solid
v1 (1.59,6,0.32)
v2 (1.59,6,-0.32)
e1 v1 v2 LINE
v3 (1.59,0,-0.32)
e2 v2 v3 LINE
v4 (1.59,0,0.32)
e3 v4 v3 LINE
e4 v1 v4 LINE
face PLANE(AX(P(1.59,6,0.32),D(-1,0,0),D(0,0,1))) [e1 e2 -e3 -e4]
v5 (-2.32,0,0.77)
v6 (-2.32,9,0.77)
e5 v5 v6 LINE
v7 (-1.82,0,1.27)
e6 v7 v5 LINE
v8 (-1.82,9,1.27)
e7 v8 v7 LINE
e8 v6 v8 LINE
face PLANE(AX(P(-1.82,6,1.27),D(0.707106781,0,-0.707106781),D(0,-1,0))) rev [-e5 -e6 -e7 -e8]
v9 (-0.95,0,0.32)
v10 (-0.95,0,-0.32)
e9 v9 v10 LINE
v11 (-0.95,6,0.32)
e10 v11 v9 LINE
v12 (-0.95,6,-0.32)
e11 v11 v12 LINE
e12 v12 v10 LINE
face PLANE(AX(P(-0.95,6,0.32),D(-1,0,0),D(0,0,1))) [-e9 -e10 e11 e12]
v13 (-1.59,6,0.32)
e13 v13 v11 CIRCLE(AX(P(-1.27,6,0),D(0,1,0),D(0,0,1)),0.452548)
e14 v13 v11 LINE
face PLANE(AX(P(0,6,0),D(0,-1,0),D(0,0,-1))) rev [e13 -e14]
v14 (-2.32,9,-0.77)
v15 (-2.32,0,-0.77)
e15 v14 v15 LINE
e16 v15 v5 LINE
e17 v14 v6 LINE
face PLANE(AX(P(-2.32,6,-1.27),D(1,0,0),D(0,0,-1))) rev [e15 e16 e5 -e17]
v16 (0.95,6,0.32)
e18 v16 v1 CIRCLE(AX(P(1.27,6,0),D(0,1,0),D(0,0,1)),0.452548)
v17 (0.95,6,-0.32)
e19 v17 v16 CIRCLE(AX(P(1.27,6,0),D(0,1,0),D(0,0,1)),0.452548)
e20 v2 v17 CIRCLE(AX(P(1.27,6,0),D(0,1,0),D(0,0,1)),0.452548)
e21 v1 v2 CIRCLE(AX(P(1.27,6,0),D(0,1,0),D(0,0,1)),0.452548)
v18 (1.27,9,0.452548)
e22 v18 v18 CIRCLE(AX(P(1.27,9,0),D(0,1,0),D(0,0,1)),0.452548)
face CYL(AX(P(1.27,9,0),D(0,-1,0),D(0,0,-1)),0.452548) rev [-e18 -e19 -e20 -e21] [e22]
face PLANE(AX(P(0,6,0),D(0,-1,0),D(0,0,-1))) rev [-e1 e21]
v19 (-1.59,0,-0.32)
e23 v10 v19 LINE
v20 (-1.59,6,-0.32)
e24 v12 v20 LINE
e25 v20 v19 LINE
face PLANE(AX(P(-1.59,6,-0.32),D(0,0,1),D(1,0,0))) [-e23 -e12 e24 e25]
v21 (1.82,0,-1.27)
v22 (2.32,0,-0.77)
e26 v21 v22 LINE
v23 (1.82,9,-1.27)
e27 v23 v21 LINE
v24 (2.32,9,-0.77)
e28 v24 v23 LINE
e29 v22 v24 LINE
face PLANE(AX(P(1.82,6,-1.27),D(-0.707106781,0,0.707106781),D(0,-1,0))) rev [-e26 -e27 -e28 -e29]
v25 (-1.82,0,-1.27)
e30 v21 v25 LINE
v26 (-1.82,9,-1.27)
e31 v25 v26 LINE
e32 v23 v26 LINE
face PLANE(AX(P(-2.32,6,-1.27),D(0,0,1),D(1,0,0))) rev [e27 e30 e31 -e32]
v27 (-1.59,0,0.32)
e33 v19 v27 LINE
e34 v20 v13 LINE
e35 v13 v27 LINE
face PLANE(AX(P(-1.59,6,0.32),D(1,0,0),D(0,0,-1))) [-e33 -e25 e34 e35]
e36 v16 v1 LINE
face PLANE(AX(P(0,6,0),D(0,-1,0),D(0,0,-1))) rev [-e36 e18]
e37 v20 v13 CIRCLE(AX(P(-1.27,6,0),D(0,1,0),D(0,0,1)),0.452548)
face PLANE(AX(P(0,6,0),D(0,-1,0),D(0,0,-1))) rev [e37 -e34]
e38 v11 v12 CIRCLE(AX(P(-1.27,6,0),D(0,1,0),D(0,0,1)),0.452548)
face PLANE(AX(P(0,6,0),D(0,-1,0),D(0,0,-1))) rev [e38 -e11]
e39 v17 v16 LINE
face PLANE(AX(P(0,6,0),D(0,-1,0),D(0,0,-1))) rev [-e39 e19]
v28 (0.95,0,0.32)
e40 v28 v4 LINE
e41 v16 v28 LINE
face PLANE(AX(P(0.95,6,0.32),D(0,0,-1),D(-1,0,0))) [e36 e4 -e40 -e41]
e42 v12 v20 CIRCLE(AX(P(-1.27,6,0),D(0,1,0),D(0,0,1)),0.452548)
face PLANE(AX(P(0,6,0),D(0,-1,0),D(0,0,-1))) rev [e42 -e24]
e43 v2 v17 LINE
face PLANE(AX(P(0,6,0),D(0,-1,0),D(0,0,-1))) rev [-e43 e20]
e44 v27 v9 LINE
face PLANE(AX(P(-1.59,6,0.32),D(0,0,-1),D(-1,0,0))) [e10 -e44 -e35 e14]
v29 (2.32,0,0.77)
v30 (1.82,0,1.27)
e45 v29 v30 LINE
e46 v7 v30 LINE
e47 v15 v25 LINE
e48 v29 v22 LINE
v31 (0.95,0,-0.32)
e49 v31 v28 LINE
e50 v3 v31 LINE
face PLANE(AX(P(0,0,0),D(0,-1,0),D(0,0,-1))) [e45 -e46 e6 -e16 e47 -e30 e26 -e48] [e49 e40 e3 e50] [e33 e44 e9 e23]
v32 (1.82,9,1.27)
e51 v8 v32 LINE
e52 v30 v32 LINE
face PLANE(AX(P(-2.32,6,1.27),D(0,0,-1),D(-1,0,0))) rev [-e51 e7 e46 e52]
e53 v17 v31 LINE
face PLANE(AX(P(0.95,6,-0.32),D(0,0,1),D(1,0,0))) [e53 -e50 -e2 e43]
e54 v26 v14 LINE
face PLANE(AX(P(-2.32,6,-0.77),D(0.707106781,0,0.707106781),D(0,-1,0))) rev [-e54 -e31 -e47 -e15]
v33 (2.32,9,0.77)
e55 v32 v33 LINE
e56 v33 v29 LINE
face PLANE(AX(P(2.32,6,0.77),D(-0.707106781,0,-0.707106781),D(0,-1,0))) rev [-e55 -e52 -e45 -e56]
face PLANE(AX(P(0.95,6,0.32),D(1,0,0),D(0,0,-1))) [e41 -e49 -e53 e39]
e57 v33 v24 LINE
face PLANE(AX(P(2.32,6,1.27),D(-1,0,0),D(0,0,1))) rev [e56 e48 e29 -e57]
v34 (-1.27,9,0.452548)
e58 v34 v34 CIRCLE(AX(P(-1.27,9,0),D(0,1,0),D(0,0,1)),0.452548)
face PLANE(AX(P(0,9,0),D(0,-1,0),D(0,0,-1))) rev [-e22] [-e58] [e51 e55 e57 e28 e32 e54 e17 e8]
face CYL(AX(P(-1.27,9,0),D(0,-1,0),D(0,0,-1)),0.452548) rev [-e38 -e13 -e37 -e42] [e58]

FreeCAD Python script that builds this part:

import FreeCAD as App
import Part
import Sketcher

V = App.Vector
Q = App.Units.Quantity


def edges_at(feature, points):
    """Names of the edges that pass closest to the given points."""
    edges = feature.Shape.Edges
    near = lambda p: min(range(len(edges)), key=lambda i: edges[i].distToShape(Part.Vertex(*p))[0])
    return sorted({f"Edge{near(p) + 1}" for p in points})


def add_polygon(sketch, points):
    """Adds a closed chain of lines whose ends are joined by coincident constraints."""
    first, n = sketch.GeometryCount, len(points)
    for a, b in zip(points, points[1:] + points[:1]):
        sketch.addGeometry(Part.LineSegment(App.Vector(*a, 0), App.Vector(*b, 0)), False)
    for i in range(n):
        sketch.addConstraint(Sketcher.Constraint("Coincident", first + i, 2, first + (i + 1) % n, 1))

doc = App.newDocument("Part")
body = doc.addObject("PartDesign::Body", "Body")

sketch1 = doc.addObject("Sketcher::SketchObject", "Sketch")
body.addObject(sketch1)
sketch1.AttachmentSupport = (doc.XZ_Plane, [""])
sketch1.MapMode = "FlatFace"
add_polygon(sketch1, [(-2.3, -1.3), (-2.3, 1.3), (2.3, 1.3), (2.3, -1.3)])
add_polygon(sketch1, [(-0.9, 0.3), (-1.6, 0.3), (-1.6, -0.3), (-0.9, -0.3)])
add_polygon(sketch1, [(1.6, 0.3), (0.9, 0.3), (0.9, -0.3), (1.6, -0.3)])
sketch1.addConstraint(Sketcher.Constraint("Vertical", 0))
sketch1.addConstraint(Sketcher.Constraint("Horizontal", 1))
sketch1.addConstraint(Sketcher.Constraint("Vertical", 2))
sketch1.addConstraint(Sketcher.Constraint("Horizontal", 3))
sketch1.addConstraint(Sketcher.Constraint("Horizontal", 4))
sketch1.addConstraint(Sketcher.Constraint("Vertical", 5))
sketch1.addConstraint(Sketcher.Constraint("Horizontal", 6))
sketch1.addConstraint(Sketcher.Constraint("Vertical", 7))
sketch1.addConstraint(Sketcher.Constraint("Horizontal", 8))
sketch1.addConstraint(Sketcher.Constraint("Vertical", 9))
sketch1.addConstraint(Sketcher.Constraint("Horizontal", 10))
sketch1.addConstraint(Sketcher.Constraint("Vertical", 11))
sketch1.addConstraint(Sketcher.Constraint("Symmetric", 0, 2, 2, 2, -1, 1))
sketch1.addConstraint(Sketcher.Constraint("Symmetric", 6, 2, 8, 2, -1, 1))
sketch1.addConstraint(Sketcher.Constraint("Symmetric", 4, 2, 10, 2, -1, 1))
sketch1.addConstraint(Sketcher.Constraint("Horizontal", 7, 2, 8, 2))
sketch1.addConstraint(Sketcher.Constraint("Equal", 10, 5))
sketch1.addConstraint(Sketcher.Constraint("DistanceX", 1, 1, 1, 2, Q("4.64 mm")))
sketch1.addConstraint(Sketcher.Constraint("DistanceX", 4, 2, 4, 1, Q("0.64 mm")))
sketch1.addConstraint(Sketcher.Constraint("DistanceY", 0, 1, 0, 2, Q("2.54 mm")))
sketch1.addConstraint(Sketcher.Constraint("DistanceX", 7, 2, 8, 2, Q("1.9 mm")))
pad1 = doc.addObject("PartDesign::Pad", "Pad")
body.addObject(pad1)
pad1.Profile = sketch1
pad1.Length = 6
pad1.Reversed = True

sketch2 = doc.addObject("Sketcher::SketchObject", "Sketch001")
body.addObject(sketch2)
sketch2.AttachmentSupport = (doc.XZ_Plane, [""])
sketch2.MapMode = "FlatFace"
sketch2.AttachmentOffset = App.Placement(V(0, 0, -6), App.Rotation())
add_polygon(sketch2, [(-2.32, -1.27), (-2.32, 1.27), (2.32, 1.27), (2.32, -1.27)])
sketch2.addGeometry(Part.Circle(V(-1.27, 0, 0), V(0, 0, 1), 0.45), False)
sketch2.addGeometry(Part.Circle(V(1.27, 0, 0), V(0, 0, 1), 0.45), False)
sketch2.addConstraint(Sketcher.Constraint("Vertical", 0))
sketch2.addConstraint(Sketcher.Constraint("Horizontal", 1))
sketch2.addConstraint(Sketcher.Constraint("Vertical", 2))
sketch2.addConstraint(Sketcher.Constraint("Horizontal", 3))
sketch2.addConstraint(Sketcher.Constraint("Equal", 4, 5))
sketch2.addConstraint(Sketcher.Constraint("Symmetric", 4, 3, 5, 3, -1, 1))
sketch2.addConstraint(Sketcher.Constraint("Symmetric", 0, 2, 2, 2, -1, 1))
sketch2.addConstraint(Sketcher.Constraint("PointOnObject", 4, 3, -1))
sketch2.addConstraint(Sketcher.Constraint("DistanceX", 1, 1, 1, 2, Q("4.64 mm")))
sketch2.addConstraint(Sketcher.Constraint("DistanceY", 0, 1, 0, 2, Q("2.54 mm")))
sketch2.addConstraint(Sketcher.Constraint("DistanceX", 4, 3, -1, 1, Q("1.27 mm")))
sketch2.addConstraint(Sketcher.Constraint("Diameter", 4, Q("0.905097 mm")))
pad2 = doc.addObject("PartDesign::Pad", "Pad001")
body.addObject(pad2)
pad2.Profile = sketch2
pad2.Length = 3
pad2.Reversed = True
doc.recompute()

chamfer = doc.addObject("PartDesign::Chamfer", "Chamfer")
body.addObject(chamfer)
chamfer.Base = (pad2, edges_at(pad2, [
    (2.32, 4.5, 1.27),
    (-2.32, 4.5, 1.27),
    (-2.32, 4.5, -1.27),
    (2.32, 4.5, -1.27),
]))
chamfer.Size = 0.5

doc.recompute()
